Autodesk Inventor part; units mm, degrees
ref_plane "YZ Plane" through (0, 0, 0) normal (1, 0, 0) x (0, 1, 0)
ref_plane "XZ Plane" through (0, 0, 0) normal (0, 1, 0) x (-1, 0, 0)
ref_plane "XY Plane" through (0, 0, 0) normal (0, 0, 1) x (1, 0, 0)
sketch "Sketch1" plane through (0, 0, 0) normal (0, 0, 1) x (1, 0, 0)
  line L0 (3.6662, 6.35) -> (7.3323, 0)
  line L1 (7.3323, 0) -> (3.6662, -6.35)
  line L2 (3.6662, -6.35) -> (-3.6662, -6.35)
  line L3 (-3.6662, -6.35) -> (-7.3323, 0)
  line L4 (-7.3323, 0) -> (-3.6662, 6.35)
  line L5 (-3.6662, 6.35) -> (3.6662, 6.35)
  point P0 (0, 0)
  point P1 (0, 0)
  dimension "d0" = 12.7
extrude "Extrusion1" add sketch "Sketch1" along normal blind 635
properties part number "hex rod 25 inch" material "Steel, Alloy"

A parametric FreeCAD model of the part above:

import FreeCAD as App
import Part
import Sketcher
from FreeCAD import Vector
Q = App.Units.Quantity

doc = App.newDocument("Part")
body = doc.addObject("PartDesign::Body", "Body")

# Sketch on XY plane
sketch1 = doc.addObject("Sketcher::SketchObject", "Sketch")
body.addObject(sketch1)
sketch1.AttachmentSupport = (doc.XY_Plane, [""])
sketch1.MapMode = "FlatFace"
sketch1.addGeometry([
    Part.LineSegment(Vector(7, 0, 0), Vector(4, 6, 0)),  # 0
    Part.LineSegment(Vector(4, 6, 0), Vector(-4, 6, 0)),  # 1
    Part.LineSegment(Vector(-4, 6, 0), Vector(-7, 0, 0)),  # 2
    Part.LineSegment(Vector(-7, 0, 0), Vector(-4, -6, 0)),  # 3
    Part.LineSegment(Vector(-4, -6, 0), Vector(4, -6, 0)),  # 4
    Part.LineSegment(Vector(4, -6, 0), Vector(7, 0, 0)),  # 5
], False)
sketch1.addConstraint([
    Sketcher.Constraint("Coincident", 0, 2, 1, 1),
    Sketcher.Constraint("Coincident", 1, 2, 2, 1),
    Sketcher.Constraint("Coincident", 2, 2, 3, 1),
    Sketcher.Constraint("Coincident", 3, 2, 4, 1),
    Sketcher.Constraint("Coincident", 4, 2, 5, 1),
    Sketcher.Constraint("Coincident", 5, 2, 0, 1),
    Sketcher.Constraint("Horizontal", 1),
    Sketcher.Constraint("Horizontal", 4),
    Sketcher.Constraint("Symmetric", 0, 2, 3, 2, -1, 1),
    Sketcher.Constraint("Symmetric", 2, 2, 5, 2, -1, 1),
    Sketcher.Constraint("PointOnObject", 2, 2, -1),
    Sketcher.Constraint("Parallel", 2, 5),
    Sketcher.Constraint("Vertical", 1, 2, 3, 2),
    Sketcher.Constraint("DistanceY", 3, 2, 1, 2, Q("0.5 in")),
    Sketcher.Constraint("Angle", 0, Q("119.9995 deg")),
    Sketcher.Constraint("DistanceX", 2, 2, 0, 2, Q("0.433 in")),
])
pad1 = doc.addObject("PartDesign::Pad", "Pad")
body.addObject(pad1)
pad1.Profile = sketch1
pad1.Length = Q("25 in")

doc.recompute()
